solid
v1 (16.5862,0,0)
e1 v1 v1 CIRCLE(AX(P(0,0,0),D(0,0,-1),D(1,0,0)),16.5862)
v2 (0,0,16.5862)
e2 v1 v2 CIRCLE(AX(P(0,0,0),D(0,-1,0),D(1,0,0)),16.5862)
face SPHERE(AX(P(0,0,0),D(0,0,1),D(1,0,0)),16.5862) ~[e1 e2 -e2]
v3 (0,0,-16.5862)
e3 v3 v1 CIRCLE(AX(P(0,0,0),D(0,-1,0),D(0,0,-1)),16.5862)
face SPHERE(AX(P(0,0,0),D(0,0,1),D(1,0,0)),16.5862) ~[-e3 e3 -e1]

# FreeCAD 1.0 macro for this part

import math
import FreeCAD as App
import Part
import Sketcher
from FreeCAD import Vector
Q = App.Units.Quantity

doc = App.newDocument("Part")
body = doc.addObject("PartDesign::Body", "Body")

# Sketch on XZ plane
sketch1 = body.newObject("Sketcher::SketchObject", "Sketch")
sketch1.AttachmentSupport = (doc.getObject("XZ_Plane"), [""])
sketch1.MapMode = "FlatFace"
sketch1.addGeometry([
    Part.ArcOfCircle(Part.Circle(Vector(0, 0, 0), Vector(0, 0, 1), 17), math.radians(-90), math.radians(0)),
    Part.ArcOfCircle(Part.Circle(Vector(0, 0, 0), Vector(0, 0, 1), 17), math.radians(0), math.radians(90)),
    Part.LineSegment(Vector(0, 17, 0), Vector(0, -17, 0)),
], False)
sketch1.addConstraint([
    Sketcher.Constraint("Tangent", 0, 2, 1, 1),
    Sketcher.Constraint("Coincident", 1, 2, 2, 1),
    Sketcher.Constraint("Coincident", 2, 2, 0, 1),
    Sketcher.Constraint("Vertical", 2),
    Sketcher.Constraint("Coincident", 0, 3, -1, 1),
    Sketcher.Constraint("Equal", 0, 1),
    Sketcher.Constraint("PointOnObject", 0, 2, -1),
    Sketcher.Constraint("PointOnObject", 1, 2, -2),
    Sketcher.Constraint("Radius", 0, Q("0.653 in")),
])
revolution = body.newObject("PartDesign::Revolution", "Revolution")
revolution.Profile = sketch1
revolution.ReferenceAxis = (sketch1, ["V_Axis"])
revolution.Angle = 360

doc.recompute()
